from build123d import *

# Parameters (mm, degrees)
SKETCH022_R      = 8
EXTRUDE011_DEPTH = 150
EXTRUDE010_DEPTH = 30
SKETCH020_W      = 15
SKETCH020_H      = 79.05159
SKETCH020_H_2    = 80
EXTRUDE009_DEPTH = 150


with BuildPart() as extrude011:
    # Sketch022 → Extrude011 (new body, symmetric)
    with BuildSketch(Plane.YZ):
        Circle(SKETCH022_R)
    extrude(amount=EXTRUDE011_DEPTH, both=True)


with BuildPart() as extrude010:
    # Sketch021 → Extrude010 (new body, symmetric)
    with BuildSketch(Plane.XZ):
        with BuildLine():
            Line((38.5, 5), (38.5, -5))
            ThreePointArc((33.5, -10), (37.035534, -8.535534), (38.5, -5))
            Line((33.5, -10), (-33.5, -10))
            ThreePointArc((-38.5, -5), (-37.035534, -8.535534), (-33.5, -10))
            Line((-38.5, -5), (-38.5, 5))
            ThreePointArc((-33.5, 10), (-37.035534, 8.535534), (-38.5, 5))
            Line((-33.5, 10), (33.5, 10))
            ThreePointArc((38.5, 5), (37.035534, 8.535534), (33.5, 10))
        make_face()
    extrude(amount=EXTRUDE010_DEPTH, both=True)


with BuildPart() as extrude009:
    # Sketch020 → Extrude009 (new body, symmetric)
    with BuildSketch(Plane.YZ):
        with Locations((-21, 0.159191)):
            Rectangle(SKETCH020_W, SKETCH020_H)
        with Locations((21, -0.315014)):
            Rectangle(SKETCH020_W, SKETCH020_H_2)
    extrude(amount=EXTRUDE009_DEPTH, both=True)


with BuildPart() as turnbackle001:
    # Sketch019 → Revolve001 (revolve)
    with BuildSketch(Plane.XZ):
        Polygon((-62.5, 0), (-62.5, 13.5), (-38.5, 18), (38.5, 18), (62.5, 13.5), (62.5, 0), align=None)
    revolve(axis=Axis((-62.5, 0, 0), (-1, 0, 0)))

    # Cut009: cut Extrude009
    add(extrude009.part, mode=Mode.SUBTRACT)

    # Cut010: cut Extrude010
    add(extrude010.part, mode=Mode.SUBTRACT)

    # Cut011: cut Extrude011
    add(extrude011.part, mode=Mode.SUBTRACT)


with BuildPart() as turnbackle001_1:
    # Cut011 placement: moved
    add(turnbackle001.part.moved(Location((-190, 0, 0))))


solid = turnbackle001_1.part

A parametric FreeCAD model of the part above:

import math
import FreeCAD as App
import Part
import Sketcher

V = App.Vector
Q = App.Units.Quantity


def add_polygon(sketch, points):
    """Adds a closed chain of lines whose ends are joined by coincident constraints."""
    first, n = sketch.GeometryCount, len(points)
    for a, b in zip(points, points[1:] + points[:1]):
        sketch.addGeometry(Part.LineSegment(App.Vector(*a, 0), App.Vector(*b, 0)), False)
    for i in range(n):
        sketch.addConstraint(Sketcher.Constraint("Coincident", first + i, 2, first + (i + 1) % n, 1))

doc = App.newDocument("Part")
body = doc.addObject("PartDesign::Body", "Body")

sketch1 = doc.addObject("Sketcher::SketchObject", "Sketch")
body.addObject(sketch1)
sketch1.AttachmentSupport = (doc.YZ_Plane, [""])
sketch1.MapMode = "FlatFace"
sketch1.addGeometry(Part.Circle(V(0, 0, 0), V(0, 0, 1), 8), False)
sketch1.addConstraint([
    Sketcher.Constraint("Coincident", 0, 3, -1, 1),
    Sketcher.Constraint("Diameter", 0, Q("16 mm")),
])
pad1 = doc.addObject("PartDesign::Pad", "Pad")
body.addObject(pad1)
pad1.Profile = sketch1
pad1.Length = 300
pad1.Midplane = True
body2 = doc.addObject("PartDesign::Body", "Body001")

sketch2 = doc.addObject("Sketcher::SketchObject", "Sketch001")
body2.addObject(sketch2)
sketch2.AttachmentSupport = (doc.getObject("XZ_Plane001"), [""])
sketch2.MapMode = "FlatFace"
sketch2.addGeometry([
    Part.LineSegment(V(38.5, -5, 0), V(38.5, 5, 0)),
    Part.ArcOfCircle(Part.Circle(V(33.5, 5, 0), V(0, 0, 1), 5), math.radians(-0.000004), math.radians(90.000004)),
    Part.LineSegment(V(33.5, 10, 0), V(-33.5, 10, 0)),
    Part.ArcOfCircle(Part.Circle(V(-33.5, 5, 0), V(0, 0, 1), 5), math.radians(89.999996), math.radians(180.000004)),
    Part.LineSegment(V(-38.5, 5, 0), V(-38.5, -5, 0)),
    Part.ArcOfCircle(Part.Circle(V(-33.5, -5, 0), V(0, 0, 1), 5), math.radians(179.999996), math.radians(270.000004)),
    Part.LineSegment(V(-33.5, -10, 0), V(33.5, -10, 0)),
    Part.ArcOfCircle(Part.Circle(V(33.5, -5, 0), V(0, 0, 1), 5), math.radians(-90.000004), math.radians(0.000004)),
], False)
sketch2.addConstraint([
    Sketcher.Constraint("Tangent", 0, 2, 1, 1),
    Sketcher.Constraint("Tangent", 1, 2, 2, 1),
    Sketcher.Constraint("Tangent", 2, 2, 3, 1),
    Sketcher.Constraint("Tangent", 3, 2, 4, 1),
    Sketcher.Constraint("Tangent", 4, 2, 5, 1),
    Sketcher.Constraint("Tangent", 5, 2, 6, 1),
    Sketcher.Constraint("Tangent", 6, 2, 7, 1),
    Sketcher.Constraint("Tangent", 7, 2, 0, 1),
    Sketcher.Constraint("Vertical", 0),
    Sketcher.Constraint("Horizontal", 2),
    Sketcher.Constraint("Vertical", 4),
    Sketcher.Constraint("Horizontal", 6),
    Sketcher.Constraint("Equal", 1, 3),
    Sketcher.Constraint("Equal", 3, 5),
    Sketcher.Constraint("Equal", 5, 7),
    Sketcher.Constraint("Symmetric", 1, 3, 5, 3, -1, 1),
    Sketcher.Constraint("Radius", 1, Q("5 mm")),
    Sketcher.Constraint("DistanceX", 2, 2, 2, 1, Q("67 mm")),
    Sketcher.Constraint("DistanceY", 0, 1, 0, 2, Q("10 mm")),
])
pad2 = doc.addObject("PartDesign::Pad", "Pad001")
body2.addObject(pad2)
pad2.Profile = sketch2
pad2.Length = 60
pad2.Midplane = True
body3 = doc.addObject("PartDesign::Body", "Body002")
body3.AllowCompound = True

sketch3 = doc.addObject("Sketcher::SketchObject", "Sketch002")
body3.addObject(sketch3)
sketch3.AttachmentSupport = (doc.getObject("YZ_Plane002"), [""])
sketch3.MapMode = "FlatFace"
add_polygon(sketch3, [(-28.5, 39.684986), (-28.5, -39.366604), (-13.5, -39.366604), (-13.5, 39.684986)])
add_polygon(sketch3, [(13.5, 39.684986), (13.5, -40.315014), (28.5, -40.315014), (28.5, 39.684986)])
sketch3.addConstraint([
    Sketcher.Constraint("Vertical", 0),
    Sketcher.Constraint("Horizontal", 1),
    Sketcher.Constraint("Vertical", 2),
    Sketcher.Constraint("Horizontal", 3),
    Sketcher.Constraint("Vertical", 4),
    Sketcher.Constraint("Horizontal", 5),
    Sketcher.Constraint("Vertical", 6),
    Sketcher.Constraint("Horizontal", 7),
    Sketcher.Constraint("Symmetric", 3, 2, 6, 2, -2),
    Sketcher.Constraint("Equal", 3, 5),
    Sketcher.Constraint("DistanceX", 1, 1, 1, 2, Q("15 mm")),
    Sketcher.Constraint("DistanceY", 4, 2, 4, 1, Q("80 mm")),
    Sketcher.Constraint("DistanceX", 1, 2, 4, 2, Q("27 mm")),
    Sketcher.Constraint("DistanceY", 0, 2, 0, 1, Q("79.05159 mm")),
    Sketcher.Constraint("DistanceY", 0, 2, -1, 1, Q("39.366604 mm")),
])
pad3 = doc.addObject("PartDesign::Pad", "Pad002")
body3.addObject(pad3)
pad3.Profile = sketch3
pad3.Length = 300
pad3.Midplane = True
body4 = doc.addObject("PartDesign::Body", "Body003")

sketch4 = doc.addObject("Sketcher::SketchObject", "Sketch003")
body4.addObject(sketch4)
sketch4.AttachmentSupport = (doc.getObject("XZ_Plane003"), [""])
sketch4.MapMode = "FlatFace"
add_polygon(sketch4, [(-62.5, 13.5), (-62.5, 0), (62.5, 0), (62.5, 13.5), (38.5, 18), (-38.5, 18)])
sketch4.addConstraint([
    Sketcher.Constraint("Vertical", 0),
    Sketcher.Constraint("Horizontal", 1),
    Sketcher.Constraint("Vertical", 2),
    Sketcher.Constraint("Horizontal", 4),
    Sketcher.Constraint("Symmetric", 0, 2, 1, 2, -1, 1),
    Sketcher.Constraint("Horizontal", 2, 2, 5, 2),
    Sketcher.Constraint("Equal", 3, 5),
    Sketcher.Constraint("DistanceX", 1, 1, 1, 2, Q("125 mm")),
    Sketcher.Constraint("DistanceX", 4, 2, 4, 1, Q("77 mm")),
    Sketcher.Constraint("DistanceY", 0, 2, 0, 1, Q("13.5 mm")),
    Sketcher.Constraint("DistanceY", -1, 1, 3, 2, Q("18 mm")),
])
revolution = doc.addObject("PartDesign::Revolution", "Revolution")
body4.addObject(revolution)
revolution.Profile = sketch4
revolution.ReferenceAxis = (sketch4, ["H_Axis"])
revolution.Angle = 360
doc.recompute()

boolean = doc.addObject("PartDesign::Boolean", "Boolean")
body4.addObject(boolean)
boolean.Type = "Cut"
boolean.addObjects([body3])
doc.recompute()

boolean2 = doc.addObject("PartDesign::Boolean", "Boolean001")
body4.addObject(boolean2)
boolean2.Type = "Cut"
boolean2.addObjects([body2])
doc.recompute()

boolean3 = doc.addObject("PartDesign::Boolean", "Boolean002")
body4.addObject(boolean3)
boolean3.Type = "Cut"
boolean3.addObjects([body])
body5 = doc.addObject("PartDesign::Body", "Body004")
doc.recompute()

body4.Placement = App.Placement(V(-190, 0, 0), App.Rotation(V(0, 0, 1), 0))
boolean4 = doc.addObject("PartDesign::Boolean", "Boolean003")
body5.addObject(boolean4)
boolean4.Type = "Fuse"
boolean4.addObjects([body4])

doc.recompute()
